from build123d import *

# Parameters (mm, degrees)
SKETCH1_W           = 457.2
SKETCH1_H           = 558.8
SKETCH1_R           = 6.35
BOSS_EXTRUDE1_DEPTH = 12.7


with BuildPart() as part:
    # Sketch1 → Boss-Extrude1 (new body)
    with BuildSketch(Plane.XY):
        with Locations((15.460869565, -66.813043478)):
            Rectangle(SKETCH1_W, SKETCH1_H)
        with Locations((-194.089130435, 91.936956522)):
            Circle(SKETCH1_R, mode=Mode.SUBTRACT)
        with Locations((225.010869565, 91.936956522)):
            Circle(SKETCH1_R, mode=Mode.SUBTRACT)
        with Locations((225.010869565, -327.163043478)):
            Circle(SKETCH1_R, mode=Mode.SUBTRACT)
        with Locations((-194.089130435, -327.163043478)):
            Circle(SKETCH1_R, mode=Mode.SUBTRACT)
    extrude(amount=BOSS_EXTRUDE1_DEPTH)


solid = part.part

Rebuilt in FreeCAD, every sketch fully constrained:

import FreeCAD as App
import Part
import Sketcher
Q = App.Units.Quantity


def add_polygon(sketch, points):
    """Adds a closed chain of lines whose ends are joined by coincident constraints."""
    first, n = sketch.GeometryCount, len(points)
    for a, b in zip(points, points[1:] + points[:1]):
        sketch.addGeometry(Part.LineSegment(App.Vector(*a, 0), App.Vector(*b, 0)), False)
    for i in range(n):
        sketch.addConstraint(Sketcher.Constraint("Coincident", first + i, 2, first + (i + 1) % n, 1))

doc = App.newDocument("Part")
body = doc.addObject("PartDesign::Body", "Body")

sketch1 = doc.addObject("Sketcher::SketchObject", "Sketch")
body.addObject(sketch1)
sketch1.AttachmentSupport = (doc.XY_Plane, [""])
sketch1.MapMode = "FlatFace"
add_polygon(sketch1, [(-213, 213), (-213, -346), (244, -346), (244, 213)])
sketch1.addGeometry(Part.Circle(App.Vector(-194, -327, 0), App.Vector(0, 0, 1), 6), False)
sketch1.addGeometry(Part.Circle(App.Vector(225, -327, 0), App.Vector(0, 0, 1), 6), False)
sketch1.addGeometry(Part.Circle(App.Vector(-194, 92, 0), App.Vector(0, 0, 1), 6), False)
sketch1.addGeometry(Part.Circle(App.Vector(225, 92, 0), App.Vector(0, 0, 1), 6), False)
sketch1.addConstraint([
    Sketcher.Constraint("Vertical", 0),
    Sketcher.Constraint("Horizontal", 1),
    Sketcher.Constraint("Vertical", 2),
    Sketcher.Constraint("Horizontal", 3),
    Sketcher.Constraint("Equal", 4, 5),
    Sketcher.Constraint("Equal", 5, 6),
    Sketcher.Constraint("Equal", 6, 7),
    Sketcher.Constraint("Horizontal", 4, 3, 5, 3),
    Sketcher.Constraint("Horizontal", 6, 3, 7, 3),
    Sketcher.Constraint("Vertical", 4, 3, 6, 3),
    Sketcher.Constraint("Vertical", 5, 3, 7, 3),
    Sketcher.Constraint("Diameter", 4, Q("0.5 in")),
    Sketcher.Constraint("DistanceX", 1, 1, 1, 2, Q("18 in")),
    Sketcher.Constraint("DistanceY", 0, 2, 0, 1, Q("22 in")),
    Sketcher.Constraint("DistanceX", 4, 3, 5, 3, Q("16.5 in")),
    Sketcher.Constraint("DistanceY", 4, 3, 6, 3, Q("16.5 in")),
    Sketcher.Constraint("DistanceX", 0, 2, 4, 3, Q("0.75 in")),
    Sketcher.Constraint("DistanceY", 0, 2, 4, 3, Q("0.75 in")),
    Sketcher.Constraint("DistanceX", 4, 3, -1, 1, 194.08913),
    Sketcher.Constraint("DistanceY", 4, 3, -1, 1, 327.163043),
])
pad1 = doc.addObject("PartDesign::Pad", "Pad")
body.addObject(pad1)
pad1.Profile = sketch1
pad1.Length = Q("0.5 in")

doc.recompute()
